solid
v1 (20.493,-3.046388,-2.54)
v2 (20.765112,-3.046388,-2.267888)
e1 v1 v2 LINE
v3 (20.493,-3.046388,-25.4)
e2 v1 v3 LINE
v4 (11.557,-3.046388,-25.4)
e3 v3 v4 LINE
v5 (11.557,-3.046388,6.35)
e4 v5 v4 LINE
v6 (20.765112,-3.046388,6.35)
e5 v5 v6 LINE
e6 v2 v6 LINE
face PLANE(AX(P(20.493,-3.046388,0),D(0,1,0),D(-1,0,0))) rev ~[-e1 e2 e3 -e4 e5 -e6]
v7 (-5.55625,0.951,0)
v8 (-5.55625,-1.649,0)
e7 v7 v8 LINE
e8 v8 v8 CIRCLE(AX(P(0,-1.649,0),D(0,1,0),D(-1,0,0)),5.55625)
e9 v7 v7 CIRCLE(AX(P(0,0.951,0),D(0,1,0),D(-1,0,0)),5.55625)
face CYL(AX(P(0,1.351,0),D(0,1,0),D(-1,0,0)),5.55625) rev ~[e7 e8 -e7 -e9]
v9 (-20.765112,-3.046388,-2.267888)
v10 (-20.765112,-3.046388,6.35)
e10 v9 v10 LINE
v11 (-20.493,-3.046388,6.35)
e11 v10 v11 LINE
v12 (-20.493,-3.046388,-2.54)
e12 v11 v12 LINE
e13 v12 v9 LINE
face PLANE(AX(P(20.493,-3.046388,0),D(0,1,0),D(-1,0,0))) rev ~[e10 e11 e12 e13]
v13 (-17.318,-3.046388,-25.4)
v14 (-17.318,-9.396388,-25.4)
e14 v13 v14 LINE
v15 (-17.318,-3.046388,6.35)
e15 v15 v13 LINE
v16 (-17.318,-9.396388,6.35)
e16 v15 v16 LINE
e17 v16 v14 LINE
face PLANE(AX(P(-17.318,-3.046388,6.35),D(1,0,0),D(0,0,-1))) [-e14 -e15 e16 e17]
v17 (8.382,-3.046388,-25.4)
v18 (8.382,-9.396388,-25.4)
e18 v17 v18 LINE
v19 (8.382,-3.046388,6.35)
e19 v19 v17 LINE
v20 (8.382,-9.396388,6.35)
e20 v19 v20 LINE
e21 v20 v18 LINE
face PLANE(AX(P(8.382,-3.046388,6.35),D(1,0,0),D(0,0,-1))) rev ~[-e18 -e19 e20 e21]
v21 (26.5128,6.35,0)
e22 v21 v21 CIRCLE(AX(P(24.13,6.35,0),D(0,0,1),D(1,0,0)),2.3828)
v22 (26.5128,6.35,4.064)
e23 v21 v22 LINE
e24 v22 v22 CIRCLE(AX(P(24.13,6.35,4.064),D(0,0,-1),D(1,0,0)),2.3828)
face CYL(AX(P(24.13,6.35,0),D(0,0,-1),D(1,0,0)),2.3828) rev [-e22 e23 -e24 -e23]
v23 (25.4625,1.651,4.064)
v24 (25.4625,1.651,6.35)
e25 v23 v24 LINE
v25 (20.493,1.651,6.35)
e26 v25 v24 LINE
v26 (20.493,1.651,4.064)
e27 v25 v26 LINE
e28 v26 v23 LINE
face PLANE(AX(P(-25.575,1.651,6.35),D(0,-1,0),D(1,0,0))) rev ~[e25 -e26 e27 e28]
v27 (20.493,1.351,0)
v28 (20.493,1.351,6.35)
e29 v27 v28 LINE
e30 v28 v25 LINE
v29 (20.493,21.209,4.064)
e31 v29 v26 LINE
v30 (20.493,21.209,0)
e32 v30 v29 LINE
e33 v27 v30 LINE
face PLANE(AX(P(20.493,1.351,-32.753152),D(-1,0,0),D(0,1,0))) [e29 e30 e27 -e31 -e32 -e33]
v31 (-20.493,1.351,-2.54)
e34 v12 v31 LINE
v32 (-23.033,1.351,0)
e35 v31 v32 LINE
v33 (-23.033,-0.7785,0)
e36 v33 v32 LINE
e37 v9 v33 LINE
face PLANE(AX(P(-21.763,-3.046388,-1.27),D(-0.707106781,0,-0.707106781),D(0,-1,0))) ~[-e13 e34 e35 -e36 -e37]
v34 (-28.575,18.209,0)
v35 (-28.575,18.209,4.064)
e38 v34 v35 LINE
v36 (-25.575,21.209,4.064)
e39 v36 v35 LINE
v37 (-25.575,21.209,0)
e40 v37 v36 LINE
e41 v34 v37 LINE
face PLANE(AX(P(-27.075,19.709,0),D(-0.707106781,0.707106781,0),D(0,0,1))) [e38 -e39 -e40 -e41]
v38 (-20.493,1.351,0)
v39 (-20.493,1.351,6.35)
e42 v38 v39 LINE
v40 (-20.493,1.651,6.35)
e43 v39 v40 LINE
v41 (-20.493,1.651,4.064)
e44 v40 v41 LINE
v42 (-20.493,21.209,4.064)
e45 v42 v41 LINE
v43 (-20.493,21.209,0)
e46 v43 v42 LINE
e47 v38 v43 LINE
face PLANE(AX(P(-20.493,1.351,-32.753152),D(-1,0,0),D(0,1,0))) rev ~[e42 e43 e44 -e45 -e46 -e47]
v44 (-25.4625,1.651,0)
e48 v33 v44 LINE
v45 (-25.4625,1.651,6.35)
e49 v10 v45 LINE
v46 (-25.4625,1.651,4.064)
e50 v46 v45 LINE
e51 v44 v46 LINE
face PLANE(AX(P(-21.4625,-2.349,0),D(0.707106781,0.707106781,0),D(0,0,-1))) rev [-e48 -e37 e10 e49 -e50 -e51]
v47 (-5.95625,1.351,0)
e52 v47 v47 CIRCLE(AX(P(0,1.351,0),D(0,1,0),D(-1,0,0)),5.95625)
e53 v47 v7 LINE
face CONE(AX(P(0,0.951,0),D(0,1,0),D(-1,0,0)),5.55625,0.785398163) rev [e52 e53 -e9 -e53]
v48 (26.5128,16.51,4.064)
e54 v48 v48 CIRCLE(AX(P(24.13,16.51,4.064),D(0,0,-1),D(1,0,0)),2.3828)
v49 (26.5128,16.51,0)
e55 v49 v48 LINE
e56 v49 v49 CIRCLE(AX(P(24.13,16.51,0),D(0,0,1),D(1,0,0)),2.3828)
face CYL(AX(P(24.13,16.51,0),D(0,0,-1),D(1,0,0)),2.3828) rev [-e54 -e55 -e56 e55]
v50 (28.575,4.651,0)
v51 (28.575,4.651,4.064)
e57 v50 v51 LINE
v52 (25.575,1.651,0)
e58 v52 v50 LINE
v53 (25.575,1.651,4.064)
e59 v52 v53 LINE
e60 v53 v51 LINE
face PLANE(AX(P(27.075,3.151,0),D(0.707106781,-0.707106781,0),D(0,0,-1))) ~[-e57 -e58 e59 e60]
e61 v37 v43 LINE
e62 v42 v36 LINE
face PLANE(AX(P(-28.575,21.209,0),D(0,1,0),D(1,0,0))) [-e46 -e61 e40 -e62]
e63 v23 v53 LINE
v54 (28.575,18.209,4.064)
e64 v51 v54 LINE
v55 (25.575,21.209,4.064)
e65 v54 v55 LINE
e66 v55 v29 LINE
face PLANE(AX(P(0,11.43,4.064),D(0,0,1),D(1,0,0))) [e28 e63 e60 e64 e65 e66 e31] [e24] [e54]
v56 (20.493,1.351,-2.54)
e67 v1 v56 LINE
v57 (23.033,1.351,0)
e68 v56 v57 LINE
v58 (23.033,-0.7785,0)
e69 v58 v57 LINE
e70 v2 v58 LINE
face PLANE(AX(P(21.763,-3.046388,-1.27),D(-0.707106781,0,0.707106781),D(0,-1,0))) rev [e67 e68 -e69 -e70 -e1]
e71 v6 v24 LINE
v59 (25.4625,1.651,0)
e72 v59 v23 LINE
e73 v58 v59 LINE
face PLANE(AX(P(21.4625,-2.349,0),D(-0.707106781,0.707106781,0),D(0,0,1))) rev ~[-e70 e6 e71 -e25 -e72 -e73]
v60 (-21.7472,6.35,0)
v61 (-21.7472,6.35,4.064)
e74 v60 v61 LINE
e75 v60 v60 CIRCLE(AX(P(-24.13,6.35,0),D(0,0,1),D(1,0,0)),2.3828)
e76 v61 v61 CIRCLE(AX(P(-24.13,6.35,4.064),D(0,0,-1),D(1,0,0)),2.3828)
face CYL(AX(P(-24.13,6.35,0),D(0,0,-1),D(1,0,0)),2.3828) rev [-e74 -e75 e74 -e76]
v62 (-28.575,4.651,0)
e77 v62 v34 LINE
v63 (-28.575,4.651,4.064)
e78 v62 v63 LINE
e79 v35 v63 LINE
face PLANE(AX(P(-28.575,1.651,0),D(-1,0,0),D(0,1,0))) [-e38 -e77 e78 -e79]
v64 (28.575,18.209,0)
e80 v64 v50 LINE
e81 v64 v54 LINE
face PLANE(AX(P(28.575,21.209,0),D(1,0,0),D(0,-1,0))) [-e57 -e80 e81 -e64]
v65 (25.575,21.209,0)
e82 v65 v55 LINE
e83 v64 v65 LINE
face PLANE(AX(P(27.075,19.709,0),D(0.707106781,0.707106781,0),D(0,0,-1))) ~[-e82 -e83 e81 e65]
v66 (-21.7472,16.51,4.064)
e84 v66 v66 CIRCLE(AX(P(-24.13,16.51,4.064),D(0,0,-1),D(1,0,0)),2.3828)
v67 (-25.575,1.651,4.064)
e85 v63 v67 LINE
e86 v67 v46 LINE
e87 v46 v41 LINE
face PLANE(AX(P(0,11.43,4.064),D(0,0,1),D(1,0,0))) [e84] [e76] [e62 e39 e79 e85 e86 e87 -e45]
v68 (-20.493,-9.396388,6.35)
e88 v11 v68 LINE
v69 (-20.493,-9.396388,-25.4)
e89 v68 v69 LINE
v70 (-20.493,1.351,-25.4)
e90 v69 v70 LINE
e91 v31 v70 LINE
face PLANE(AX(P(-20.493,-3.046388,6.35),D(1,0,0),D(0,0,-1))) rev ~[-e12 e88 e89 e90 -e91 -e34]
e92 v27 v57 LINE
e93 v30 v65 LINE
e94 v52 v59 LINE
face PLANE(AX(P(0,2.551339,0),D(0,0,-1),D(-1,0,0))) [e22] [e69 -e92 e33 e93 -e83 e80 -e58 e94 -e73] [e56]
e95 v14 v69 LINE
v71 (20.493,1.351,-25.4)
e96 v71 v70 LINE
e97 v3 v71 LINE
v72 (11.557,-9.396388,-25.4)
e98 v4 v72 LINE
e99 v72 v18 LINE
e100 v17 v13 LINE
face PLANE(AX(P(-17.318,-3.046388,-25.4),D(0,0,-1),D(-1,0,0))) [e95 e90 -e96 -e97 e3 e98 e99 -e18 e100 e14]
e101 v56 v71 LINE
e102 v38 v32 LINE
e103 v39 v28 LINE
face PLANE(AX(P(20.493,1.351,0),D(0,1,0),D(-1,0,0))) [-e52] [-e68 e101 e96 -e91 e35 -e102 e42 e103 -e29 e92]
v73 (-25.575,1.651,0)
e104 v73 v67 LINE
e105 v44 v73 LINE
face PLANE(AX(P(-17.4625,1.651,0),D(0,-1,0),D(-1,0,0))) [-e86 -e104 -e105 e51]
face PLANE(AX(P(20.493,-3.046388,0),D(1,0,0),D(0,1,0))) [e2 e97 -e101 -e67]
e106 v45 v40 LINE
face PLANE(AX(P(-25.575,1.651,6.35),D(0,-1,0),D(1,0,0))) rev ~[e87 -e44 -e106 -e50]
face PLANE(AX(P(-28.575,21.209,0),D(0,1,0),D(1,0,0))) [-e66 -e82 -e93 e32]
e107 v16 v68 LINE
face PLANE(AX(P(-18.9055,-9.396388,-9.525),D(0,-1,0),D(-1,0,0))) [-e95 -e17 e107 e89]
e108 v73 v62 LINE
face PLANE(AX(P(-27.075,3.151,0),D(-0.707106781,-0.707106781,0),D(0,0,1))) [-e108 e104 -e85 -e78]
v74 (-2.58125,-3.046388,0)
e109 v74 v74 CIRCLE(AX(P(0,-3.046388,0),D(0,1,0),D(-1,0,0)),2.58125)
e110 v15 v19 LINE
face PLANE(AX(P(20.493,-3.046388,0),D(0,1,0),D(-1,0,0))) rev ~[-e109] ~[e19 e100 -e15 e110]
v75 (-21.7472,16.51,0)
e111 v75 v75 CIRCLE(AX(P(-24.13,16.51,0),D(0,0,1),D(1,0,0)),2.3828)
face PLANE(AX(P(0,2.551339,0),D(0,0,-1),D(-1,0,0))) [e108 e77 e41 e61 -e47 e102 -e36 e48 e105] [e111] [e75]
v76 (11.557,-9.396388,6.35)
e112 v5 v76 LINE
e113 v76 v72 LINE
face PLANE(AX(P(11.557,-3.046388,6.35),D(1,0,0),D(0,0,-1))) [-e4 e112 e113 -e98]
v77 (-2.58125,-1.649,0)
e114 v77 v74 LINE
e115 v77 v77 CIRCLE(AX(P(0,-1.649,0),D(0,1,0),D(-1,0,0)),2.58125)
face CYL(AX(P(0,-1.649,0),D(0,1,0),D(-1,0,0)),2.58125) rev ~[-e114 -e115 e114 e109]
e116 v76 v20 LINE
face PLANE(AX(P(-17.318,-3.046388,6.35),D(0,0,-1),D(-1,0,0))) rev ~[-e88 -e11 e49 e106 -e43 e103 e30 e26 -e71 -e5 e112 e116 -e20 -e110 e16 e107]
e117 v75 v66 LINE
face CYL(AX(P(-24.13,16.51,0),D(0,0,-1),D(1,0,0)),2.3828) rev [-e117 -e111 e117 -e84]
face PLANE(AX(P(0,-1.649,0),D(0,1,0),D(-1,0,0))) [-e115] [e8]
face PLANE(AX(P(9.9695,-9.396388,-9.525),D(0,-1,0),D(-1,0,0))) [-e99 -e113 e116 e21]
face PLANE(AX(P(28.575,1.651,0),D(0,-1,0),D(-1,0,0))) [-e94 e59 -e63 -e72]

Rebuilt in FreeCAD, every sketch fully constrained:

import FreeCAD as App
import Part
import Sketcher

V = App.Vector
Q = App.Units.Quantity


def edges_at(feature, points):
    """Names of the edges that pass closest to the given points."""
    edges = feature.Shape.Edges
    near = lambda p: min(range(len(edges)), key=lambda i: edges[i].distToShape(Part.Vertex(*p))[0])
    return sorted({f"Edge{near(p) + 1}" for p in points})

doc = App.newDocument("Part")
body = doc.addObject("PartDesign::Body", "Body")

sketch1 = body.newObject("Sketcher::SketchObject", "Sketch")
sketch1.AttachmentSupport = (doc.getObject("XY_Plane"), [""])
sketch1.MapMode = "FlatFace"
sketch1.addGeometry([
    Part.LineSegment(V(-17.5, -21.2, 0), V(17.5, -21.2, 0)),
    Part.LineSegment(V(17.5, -21.2, 0), V(17.5, 1.7, 0)),
    Part.LineSegment(V(17.5, 1.7, 0), V(28.6, 1.7, 0)),
    Part.LineSegment(V(28.6, 1.7, 0), V(28.6, 21.2, 0)),
    Part.LineSegment(V(28.6, 21.2, 0), V(-28.6, 21.2, 0)),
    Part.LineSegment(V(-28.6, 21.2, 0), V(-28.6, 1.7, 0)),
    Part.LineSegment(V(-28.6, 1.7, 0), V(-17.5, 1.7, 0)),
    Part.LineSegment(V(-17.5, 1.7, 0), V(-17.5, -21.2, 0)),
    Part.Circle(V(9.5, -10.5, 0), V(0, 0, 1), 3.5),
    Part.Circle(V(-9.5, -10.5, 0), V(0, 0, 1), 3.5),
    Part.Circle(V(24.1, 6.3, 0), V(0, 0, 1), 2.4),
    Part.Circle(V(24.1, 16.5, 0), V(0, 0, 1), 2.4),
    Part.Circle(V(-24.1, 6.3, 0), V(0, 0, 1), 2.4),
    Part.Circle(V(-24.1, 16.5, 0), V(0, 0, 1), 2.4),
], False)
sketch1.addConstraint([
    Sketcher.Constraint("Coincident", 0, 2, 1, 1),
    Sketcher.Constraint("Coincident", 1, 2, 2, 1),
    Sketcher.Constraint("Coincident", 2, 2, 3, 1),
    Sketcher.Constraint("Coincident", 3, 2, 4, 1),
    Sketcher.Constraint("Coincident", 4, 2, 5, 1),
    Sketcher.Constraint("Coincident", 5, 2, 6, 1),
    Sketcher.Constraint("Coincident", 6, 2, 7, 1),
    Sketcher.Constraint("Coincident", 7, 2, 0, 1),
    Sketcher.Constraint("Horizontal", 0),
    Sketcher.Constraint("Vertical", 1),
    Sketcher.Constraint("Horizontal", 2),
    Sketcher.Constraint("Vertical", 3),
    Sketcher.Constraint("Horizontal", 4),
    Sketcher.Constraint("Vertical", 5),
    Sketcher.Constraint("Horizontal", 6),
    Sketcher.Constraint("Vertical", 7),
    Sketcher.Constraint("Equal", 8, 9),
    Sketcher.Constraint("Equal", 10, 11),
    Sketcher.Constraint("Equal", 11, 12),
    Sketcher.Constraint("Equal", 12, 13),
    Sketcher.Constraint("Symmetric", 8, 3, 9, 3, -2),
    Sketcher.Constraint("Symmetric", 10, 3, 12, 3, -2),
    Sketcher.Constraint("Symmetric", 11, 3, 13, 3, -2),
    Sketcher.Constraint("Symmetric", 2, 2, 5, 2, -2),
    Sketcher.Constraint("Vertical", 10, 3, 11, 3),
    Sketcher.Constraint("Equal", 2, 6),
    Sketcher.Constraint("DistanceY", 1, 1, 1, 2, Q("0.9 in")),
    Sketcher.Constraint("DistanceX", 4, 2, 4, 1, Q("2.25 in")),
    Sketcher.Constraint("DistanceY", 3, 1, 3, 2, Q("0.77 in")),
    Sketcher.Constraint("DistanceY", 10, 3, 11, 3, Q("0.4 in")),
    Sketcher.Constraint("DistanceX", 12, 3, 10, 3, Q("1.9 in")),
    Sketcher.Constraint("DistanceX", 4, 2, 8, 3, Q("1.5 in")),
    Sketcher.Constraint("Diameter", 8, Q("6.95 mm")),
    Sketcher.Constraint("Diameter", 10, Q("4.7656 mm")),
    Sketcher.Constraint("DistanceX", 0, 1, 0, 2, Q("1.375 in")),
    Sketcher.Constraint("DistanceY", -1, 1, 10, 3, Q("0.25 in")),
    Sketcher.Constraint("DistanceY", 0, 2, 8, 3, Q("0.42 in")),
    Sketcher.Constraint("DistanceY", 8, 3, -1, 1, Q("0.415 in")),
])
pad1 = body.newObject("PartDesign::Pad", "Pad")
pad1.Profile = sketch1
pad1.Length = Q("0.25 in")
doc.recompute()

chamfer = body.newObject("PartDesign::Chamfer", "Chamfer")
chamfer.Base = (pad1, edges_at(pad1, [
    (-28.575, 1.651, 3.175),
    (-28.575, 21.209, 3.175),
    (28.575, 21.209, 3.175),
    (28.575, 1.651, 3.175),
    (17.462, -21.209, 3.175),
    (-17.462, -21.209, 3.175),
]))
chamfer.Size = 3
doc.recompute()

chamfer2 = body.newObject("PartDesign::Chamfer", "Chamfer001")
chamfer2.Base = (chamfer, edges_at(chamfer, [(17.462, 1.651, 3.175), (-17.462, 1.651, 3.175)]))
chamfer2.Size = 8

sketch2 = body.newObject("Sketcher::SketchObject", "Sketch001")
sketch2.AttachmentSupport = (doc.getObject("XY_Plane"), [""])
sketch2.MapMode = "FlatFace"
sketch2.AttachmentOffset = App.Placement(V(0, 0, 0.25 * 25.4), App.Rotation())
sketch2.addGeometry([
    Part.LineSegment(V(25.6, 1.7, 0), V(28.6, 4.7, 0)),
    Part.LineSegment(V(28.6, 4.7, 0), V(28.6, 18.2, 0)),
    Part.LineSegment(V(28.6, 18.2, 0), V(25.6, 21.2, 0)),
    Part.LineSegment(V(25.6, 21.2, 0), V(-25.6, 21.2, 0)),
    Part.LineSegment(V(-25.6, 21.2, 0), V(-28.6, 18.2, 0)),
    Part.LineSegment(V(-28.6, 18.2, 0), V(-28.6, 4.7, 0)),
    Part.LineSegment(V(-28.6, 4.7, 0), V(-25.6, 1.7, 0)),
    Part.LineSegment(V(-25.6, 1.7, 0), V(25.6, 1.7, 0)),
], False)
sketch2.addConstraint([
    Sketcher.Constraint("Coincident", 0, 2, 1, 1),
    Sketcher.Constraint("Coincident", 1, 2, 2, 1),
    Sketcher.Constraint("Coincident", 2, 2, 3, 1),
    Sketcher.Constraint("Coincident", 3, 2, 4, 1),
    Sketcher.Constraint("Coincident", 4, 2, 5, 1),
    Sketcher.Constraint("Coincident", 5, 2, 6, 1),
    Sketcher.Constraint("Coincident", 6, 2, 7, 1),
    Sketcher.Constraint("Coincident", 7, 2, 0, 1),
    Sketcher.Constraint("Vertical", 1),
    Sketcher.Constraint("Horizontal", 3),
    Sketcher.Constraint("Vertical", 5),
    Sketcher.Constraint("Horizontal", 7),
    Sketcher.Constraint("Symmetric", 1, 2, 4, 2, -2),
    Sketcher.Constraint("Perpendicular", 0, 2),
    Sketcher.Constraint("Perpendicular", 2, 4),
    Sketcher.Constraint("Perpendicular", 4, 6),
    Sketcher.Constraint("Horizontal", 0, 2, 5, 2),
    Sketcher.Constraint("Vertical", 3, 2, 6, 2),
    Sketcher.Constraint("Vertical", 2, 2, 7, 2),
    Sketcher.Constraint("DistanceX", 4, 2, 1, 2, Q("2.25 in")),
    Sketcher.Constraint("DistanceY", 6, 2, 3, 2, Q("0.77 in")),
    Sketcher.Constraint("DistanceY", -1, 1, 2, 2, Q("0.835 in")),
    Sketcher.Constraint("DistanceX", 3, 2, 3, 1, Q("51.15 mm")),
])
pocket1 = body.newObject("PartDesign::Pocket", "Pocket")
pocket1.Profile = sketch2
pocket1.Length = Q("0.09 in")

sketch3 = body.newObject("Sketcher::SketchObject", "Sketch002")
sketch3.AttachmentSupport = (doc.getObject("XY_Plane"), [""])
sketch3.MapMode = "FlatFace"
sketch3.AttachmentOffset = App.Placement(V(0, 0, 0.16 * 25.4), App.Rotation())
sketch3.addGeometry([
    Part.LineSegment(V(-20, 22, 0), V(-20, 1, 0)),
    Part.LineSegment(V(-20, 1, 0), V(20, 1, 0)),
    Part.LineSegment(V(20, 1, 0), V(20, 22, 0)),
    Part.LineSegment(V(20, 22, 0), V(-20, 22, 0)),
], False)
sketch3.addConstraint([
    Sketcher.Constraint("Coincident", 0, 2, 1, 1),
    Sketcher.Constraint("Coincident", 1, 2, 2, 1),
    Sketcher.Constraint("Coincident", 2, 2, 3, 1),
    Sketcher.Constraint("Coincident", 3, 2, 0, 1),
    Sketcher.Constraint("Vertical", 0),
    Sketcher.Constraint("Horizontal", 1),
    Sketcher.Constraint("Vertical", 2),
    Sketcher.Constraint("Horizontal", 3),
    Sketcher.Constraint("DistanceX", 1, 1, 1, 2, Q("40.986 mm")),
    Sketcher.Constraint("DistanceY", 0, 2, 0, 1, Q("20.158 mm")),
    Sketcher.Constraint("DistanceX", 0, 2, -1, 1, Q("20.493 mm")),
    Sketcher.Constraint("DistanceY", -1, 1, 0, 2, Q("1.351 mm")),
])
pocket2 = body.newObject("PartDesign::Pocket", "Pocket001")
pocket2.Profile = sketch3
pocket2.Type = "ThroughAll"
pocket2.Midplane = True

sketch4 = body.newObject("Sketcher::SketchObject", "Sketch003")
sketch4.AttachmentSupport = (doc.getObject("XY_Plane"), [""])
sketch4.MapMode = "FlatFace"
sketch4.AttachmentOffset = App.Placement(V(0, 0, 0.25 * 25.4), App.Rotation())
sketch4.addGeometry([
    Part.LineSegment(V(-30, -3, 0), V(-30, -22, 0)),
    Part.LineSegment(V(-30, -22, 0), V(27, -22, 0)),
    Part.LineSegment(V(27, -22, 0), V(27, -3, 0)),
    Part.LineSegment(V(27, -3, 0), V(-30, -3, 0)),
], False)
sketch4.addConstraint([
    Sketcher.Constraint("Coincident", 0, 2, 1, 1),
    Sketcher.Constraint("Coincident", 1, 2, 2, 1),
    Sketcher.Constraint("Coincident", 2, 2, 3, 1),
    Sketcher.Constraint("Coincident", 3, 2, 0, 1),
    Sketcher.Constraint("Vertical", 0),
    Sketcher.Constraint("Horizontal", 1),
    Sketcher.Constraint("Vertical", 2),
    Sketcher.Constraint("Horizontal", 3),
    Sketcher.Constraint("DistanceY", 0, 2, 0, 1, Q("0.75 in")),
    Sketcher.Constraint("DistanceX", 1, 1, 1, 2, Q("57.000074 mm")),
    Sketcher.Constraint("DistanceX", -1, 1, 1, 2, Q("26.576411 mm")),
    Sketcher.Constraint("DistanceY", 0, 2, -1, 1, Q("22.096388 mm")),
])
pocket3 = body.newObject("PartDesign::Pocket", "Pocket002")
pocket3.Profile = sketch4
pocket3.Type = "ThroughAll"

sketch5 = body.newObject("Sketcher::SketchObject", "Sketch004")
sketch5.AttachmentSupport = (doc.getObject("XY_Plane"), [""])
sketch5.MapMode = "FlatFace"
sketch5.addGeometry([
    Part.LineSegment(V(20.5, 1.4, 0), V(20.5, -3, 0)),
    Part.LineSegment(V(20.5, -3, 0), V(-20.5, -3, 0)),
    Part.LineSegment(V(-20.5, -3, 0), V(-20.5, 1.4, 0)),
    Part.LineSegment(V(-20.5, 1.4, 0), V(20.5, 1.4, 0)),
], False)
sketch5.addConstraint([
    Sketcher.Constraint("Coincident", 0, 2, 1, 1),
    Sketcher.Constraint("Coincident", 1, 2, 2, 1),
    Sketcher.Constraint("Coincident", 2, 2, 3, 1),
    Sketcher.Constraint("Coincident", 3, 2, 0, 1),
    Sketcher.Constraint("Vertical", 0),
    Sketcher.Constraint("Horizontal", 1),
    Sketcher.Constraint("Vertical", 2),
    Sketcher.Constraint("Horizontal", 3),
    Sketcher.Constraint("DistanceX", 1, 2, 1, 1, Q("40.986 mm")),
    Sketcher.Constraint("DistanceX", -1, 1, 0, 2, Q("20.493 mm")),
    Sketcher.Constraint("DistanceY", -1, 1, 2, 2, Q("1.351 mm")),
    Sketcher.Constraint("DistanceY", 0, 2, 0, 1, Q("4.397388 mm")),
])
pad2 = body.newObject("PartDesign::Pad", "Pad001")
pad2.Profile = sketch5
pad2.Length = Q("1 in")
pad2.Reversed = True
doc.recompute()

chamfer3 = body.newObject("PartDesign::Chamfer", "Chamfer002")
chamfer3.Base = (pad2, edges_at(pad2, [(-20.493, -0.848, 0), (20.493, -0.848, 0)]))
chamfer3.Size = Q("0.1 in")

sketch6 = body.newObject("Sketcher::SketchObject", "Sketch005")
sketch6.AttachmentSupport = (doc.getObject("XZ_Plane"), [""])
sketch6.MapMode = "FlatFace"
sketch6.AttachmentOffset = App.Placement(V(0, 0, 3.046388), App.Rotation())
sketch6.addGeometry([
    Part.LineSegment(V(-17.3, -25.4, 0), V(-17.3, 6.3, 0)),
    Part.LineSegment(V(-17.3, 6.3, 0), V(-20.5, 6.3, 0)),
    Part.LineSegment(V(-20.5, 6.3, 0), V(-20.5, -25.4, 0)),
    Part.LineSegment(V(-20.5, -25.4, 0), V(-17.3, -25.4, 0)),
    Part.LineSegment(V(11.6, -25.4, 0), V(11.6, 6.3, 0)),
    Part.LineSegment(V(11.6, 6.3, 0), V(8.4, 6.3, 0)),
    Part.LineSegment(V(8.4, 6.3, 0), V(8.4, -25.4, 0)),
    Part.LineSegment(V(8.4, -25.4, 0), V(11.6, -25.4, 0)),
], False)
sketch6.addConstraint([
    Sketcher.Constraint("Coincident", 0, 2, 1, 1),
    Sketcher.Constraint("Coincident", 1, 2, 2, 1),
    Sketcher.Constraint("Coincident", 2, 2, 3, 1),
    Sketcher.Constraint("Coincident", 3, 2, 0, 1),
    Sketcher.Constraint("Coincident", 4, 2, 5, 1),
    Sketcher.Constraint("Coincident", 5, 2, 6, 1),
    Sketcher.Constraint("Coincident", 6, 2, 7, 1),
    Sketcher.Constraint("Coincident", 7, 2, 4, 1),
    Sketcher.Constraint("Vertical", 0),
    Sketcher.Constraint("Horizontal", 1),
    Sketcher.Constraint("Vertical", 2),
    Sketcher.Constraint("Horizontal", 3),
    Sketcher.Constraint("Vertical", 4),
    Sketcher.Constraint("Horizontal", 5),
    Sketcher.Constraint("Vertical", 6),
    Sketcher.Constraint("Horizontal", 7),
    Sketcher.Constraint("Horizontal", 1, 2, 4, 2),
    Sketcher.Constraint("Horizontal", 3, 2, 6, 2),
    Sketcher.Constraint("Equal", 3, 5),
    Sketcher.Constraint("DistanceY", 2, 2, -1, 1, Q("1 in")),
    Sketcher.Constraint("DistanceY", 0, 1, 0, 2, Q("1.25 in")),
    Sketcher.Constraint("DistanceX", 1, 2, 1, 1, Q("0.125 in")),
    Sketcher.Constraint("DistanceX", -1, 1, 5, 2, Q("0.33 in")),
    Sketcher.Constraint("DistanceX", 0, 2, -1, 1, Q("17.318 mm")),
])
pad3 = body.newObject("PartDesign::Pad", "Pad002")
pad3.Profile = sketch6
pad3.Length = Q("0.25 in")

sketch7 = body.newObject("Sketcher::SketchObject", "Sketch006")
sketch7.AttachmentSupport = (doc.getObject("XZ_Plane"), [""])
sketch7.MapMode = "FlatFace"
sketch7.AttachmentOffset = App.Placement(V(0, 0, -1.351), App.Rotation())
sketch7.addGeometry(Part.Circle(V(0, 0, 0), V(0, 0, 1), 6), False)
sketch7.addConstraint([
    Sketcher.Constraint("Coincident", 0, 3, -1, 1),
    Sketcher.Constraint("Diameter", 0, Q("0.4375 in")),
])
pocket4 = body.newObject("PartDesign::Pocket", "Pocket003")
pocket4.Profile = sketch7
pocket4.Length = 3
pocket4.Reversed = True

sketch8 = body.newObject("Sketcher::SketchObject", "Sketch007")
sketch8.AttachmentSupport = (doc.getObject("XZ_Plane"), [""])
sketch8.MapMode = "FlatFace"
sketch8.AttachmentOffset = App.Placement(V(0, 0, 1.649), App.Rotation())
sketch8.addGeometry(Part.Circle(V(0, 0, 0), V(0, 0, 1), 2.6), False)
sketch8.addConstraint([
    Sketcher.Constraint("Coincident", 0, 3, -1, 1),
    Sketcher.Constraint("Diameter", 0, Q("5.1625 mm")),
])
pocket5 = body.newObject("PartDesign::Pocket", "Pocket004")
pocket5.Profile = sketch8
pocket5.Length = Q("0.25 in")
pocket5.Reversed = True
doc.recompute()

chamfer4 = body.newObject("PartDesign::Chamfer", "Chamfer003")
chamfer4.Base = (pocket5, edges_at(pocket5, [(5.556, 1.351, 0)]))
chamfer4.Size = 0.4

doc.recompute()
